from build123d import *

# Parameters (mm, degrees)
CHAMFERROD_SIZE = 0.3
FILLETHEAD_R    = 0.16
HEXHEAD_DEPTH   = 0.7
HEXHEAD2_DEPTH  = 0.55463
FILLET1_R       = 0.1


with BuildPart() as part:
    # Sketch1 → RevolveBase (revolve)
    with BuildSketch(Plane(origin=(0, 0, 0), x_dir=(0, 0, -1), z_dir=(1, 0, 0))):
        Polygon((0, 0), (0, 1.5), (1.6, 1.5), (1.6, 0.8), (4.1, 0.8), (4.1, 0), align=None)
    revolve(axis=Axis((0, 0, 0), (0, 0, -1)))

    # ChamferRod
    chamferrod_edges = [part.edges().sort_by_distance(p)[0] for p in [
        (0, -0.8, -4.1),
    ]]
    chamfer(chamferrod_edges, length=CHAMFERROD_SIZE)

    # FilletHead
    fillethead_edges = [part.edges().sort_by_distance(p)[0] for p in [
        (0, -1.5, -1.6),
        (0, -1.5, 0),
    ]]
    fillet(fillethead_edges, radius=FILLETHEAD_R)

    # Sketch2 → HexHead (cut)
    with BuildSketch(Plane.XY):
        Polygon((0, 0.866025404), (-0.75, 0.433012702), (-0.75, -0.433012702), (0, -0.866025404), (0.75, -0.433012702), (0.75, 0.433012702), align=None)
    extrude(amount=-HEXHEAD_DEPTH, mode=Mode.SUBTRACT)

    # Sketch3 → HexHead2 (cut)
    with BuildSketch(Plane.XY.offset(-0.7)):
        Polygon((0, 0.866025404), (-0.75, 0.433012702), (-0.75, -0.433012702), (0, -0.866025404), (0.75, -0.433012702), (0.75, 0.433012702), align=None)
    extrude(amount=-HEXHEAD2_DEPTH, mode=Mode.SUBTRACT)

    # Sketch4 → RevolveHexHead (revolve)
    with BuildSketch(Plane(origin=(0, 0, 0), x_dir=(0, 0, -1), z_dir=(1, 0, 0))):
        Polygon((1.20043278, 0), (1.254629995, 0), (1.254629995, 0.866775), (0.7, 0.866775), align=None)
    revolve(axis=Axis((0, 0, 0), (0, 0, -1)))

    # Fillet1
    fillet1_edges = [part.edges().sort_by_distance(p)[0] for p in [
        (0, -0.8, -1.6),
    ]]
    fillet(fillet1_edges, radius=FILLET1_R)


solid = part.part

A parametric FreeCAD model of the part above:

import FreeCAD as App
import Part
import Sketcher
from FreeCAD import Vector
Q = App.Units.Quantity


def edges_at(feature, points):
    """Names of the edges that pass closest to the given points."""
    edges = feature.Shape.Edges
    near = lambda p: min(range(len(edges)), key=lambda i: edges[i].distToShape(Part.Vertex(*p))[0])
    return sorted({f"Edge{near(p) + 1}" for p in points})

doc = App.newDocument("Part")
params = doc.addObject("Spreadsheet::Sheet", "Params")
for row, (alias, value) in enumerate([
    ("sketch1_width", "1.5 mm"),
    ("sketch1_width2", "0.8 mm"),
    ("sketch1_height", "4.1 mm"),
    ("sketch1_height2", "2.5 mm"),
    ("revolution_angle", "360 deg"),
    ("chamfer_size", "0.3 mm"),
    ("fillet_radius", "0.16 mm"),
    ("pocket1_length", "0.7 mm"),
    ("pocket2_length", "0.55463 mm"),
    ("revolution2_angle", "360 deg"),
    ("fillet2_radius", "0.1 mm"),
], start=1):
    params.set(f"A{row}", alias)
    params.set(f"B{row}", "=" + value)
    params.setAlias(f"B{row}", alias)

body = doc.addObject("PartDesign::Body", "Body")

# Sketch on YZ plane
sketch1 = body.newObject("Sketcher::SketchObject", "Sketch")
sketch1.AttachmentSupport = (doc.getObject("YZ_Plane"), [""])
sketch1.MapMode = "FlatFace"
sketch1.addGeometry([
    Part.LineSegment(Vector(1.5, 0, 0), Vector(0, 0, 0)),  # 0
    Part.LineSegment(Vector(0, 0, 0), Vector(0, -4.1, 0)),  # 1
    Part.LineSegment(Vector(0, -4.1, 0), Vector(0.8, -4.1, 0)),  # 2
    Part.LineSegment(Vector(0.8, -4.1, 0), Vector(0.8, -1.6, 0)),  # 3
    Part.LineSegment(Vector(0.8, -1.6, 0), Vector(1.5, -1.6, 0)),  # 4
    Part.LineSegment(Vector(1.5, -1.6, 0), Vector(1.5, 0, 0)),  # 5
], False)
sketch1.addConstraint([
    Sketcher.Constraint("Coincident", 0, 2, 1, 1),
    Sketcher.Constraint("Coincident", 1, 2, 2, 1),
    Sketcher.Constraint("Coincident", 2, 2, 3, 1),
    Sketcher.Constraint("Coincident", 3, 2, 4, 1),
    Sketcher.Constraint("Coincident", 4, 2, 5, 1),
    Sketcher.Constraint("Coincident", 5, 2, 0, 1),
    Sketcher.Constraint("Horizontal", 0),
    Sketcher.Constraint("Vertical", 1),
    Sketcher.Constraint("Horizontal", 2),
    Sketcher.Constraint("Vertical", 3),
    Sketcher.Constraint("Horizontal", 4),
    Sketcher.Constraint("Vertical", 5),
    Sketcher.Constraint("Coincident", 0, 2, -1, 1),
    Sketcher.Constraint("DistanceX", 0, 2, 0, 1, Q("1.5 mm")),
    Sketcher.Constraint("DistanceX", 2, 1, 2, 2, Q("0.8 mm")),
    Sketcher.Constraint("DistanceY", 1, 2, 1, 1, Q("4.1 mm")),
    Sketcher.Constraint("DistanceY", 3, 1, 3, 2, Q("2.5 mm")),
])
sketch1.setExpression("Constraints[13]", "Params.sketch1_width")
sketch1.setExpression("Constraints[14]", "Params.sketch1_width2")
sketch1.setExpression("Constraints[15]", "Params.sketch1_height")
sketch1.setExpression("Constraints[16]", "Params.sketch1_height2")
revolution = body.newObject("PartDesign::Revolution", "Revolution")
revolution.Profile = sketch1
revolution.ReferenceAxis = (sketch1, ["V_Axis"])
revolution.setExpression("Angle", "Params.revolution_angle")
doc.recompute()

chamfer = body.newObject("PartDesign::Chamfer", "Chamfer")
chamfer.Base = (revolution, edges_at(revolution, [(0, -0.8, -4.1)]))
chamfer.setExpression("Size", "Params.chamfer_size")
doc.recompute()

fillet = body.newObject("PartDesign::Fillet", "Fillet")
fillet.Base = (chamfer, edges_at(chamfer, [(0, -1.5, -1.6), (0, -1.5, 0)]))
fillet.setExpression("Radius", "Params.fillet_radius")

# Sketch on XY plane
sketch2 = body.newObject("Sketcher::SketchObject", "Sketch001")
sketch2.AttachmentSupport = (doc.getObject("XY_Plane"), [""])
sketch2.MapMode = "FlatFace"
sketch2.addGeometry([
    Part.LineSegment(Vector(0, 0.9, 0), Vector(-0.8, 0.4, 0)),  # 0
    Part.LineSegment(Vector(-0.8, 0.4, 0), Vector(-0.8, -0.4, 0)),  # 1
    Part.LineSegment(Vector(-0.8, -0.4, 0), Vector(0, -0.9, 0)),  # 2
    Part.LineSegment(Vector(0, -0.9, 0), Vector(0.8, -0.4, 0)),  # 3
    Part.LineSegment(Vector(0.8, -0.4, 0), Vector(0.8, 0.4, 0)),  # 4
    Part.LineSegment(Vector(0.8, 0.4, 0), Vector(0, 0.9, 0)),  # 5
], False)
sketch2.addConstraint([
    Sketcher.Constraint("Coincident", 0, 2, 1, 1),
    Sketcher.Constraint("Coincident", 1, 2, 2, 1),
    Sketcher.Constraint("Coincident", 2, 2, 3, 1),
    Sketcher.Constraint("Coincident", 3, 2, 4, 1),
    Sketcher.Constraint("Coincident", 4, 2, 5, 1),
    Sketcher.Constraint("Coincident", 5, 2, 0, 1),
    Sketcher.Constraint("Vertical", 1),
    Sketcher.Constraint("Vertical", 4),
    Sketcher.Constraint("Symmetric", 0, 2, 3, 2, -1, 1),
    Sketcher.Constraint("Symmetric", 2, 2, 5, 2, -1, 1),
    Sketcher.Constraint("PointOnObject", 2, 2, -2),
    Sketcher.Constraint("Parallel", 2, 5),
    Sketcher.Constraint("Horizontal", 1, 2, 3, 2),
    Sketcher.Constraint("Angle", 0, Q("-150 deg")),
    Sketcher.Constraint("DistanceX", 1, 2, 3, 2, Q("1.5 mm")),
    Sketcher.Constraint("DistanceY", 1, 2, 1, 1, Q("0.866025 mm")),
])
pocket1 = body.newObject("PartDesign::Pocket", "Pocket")
pocket1.Profile = sketch2
pocket1.setExpression("Length", "Params.pocket1_length")

# Sketch on XY plane
sketch3 = body.newObject("Sketcher::SketchObject", "Sketch002")
sketch3.AttachmentSupport = (doc.getObject("XY_Plane"), [""])
sketch3.MapMode = "FlatFace"
sketch3.AttachmentOffset = App.Placement(Vector(0, 0, -0.7), App.Rotation())
sketch3.addGeometry([
    Part.LineSegment(Vector(0, 0.9, 0), Vector(-0.8, 0.4, 0)),  # 0
    Part.LineSegment(Vector(-0.8, 0.4, 0), Vector(-0.8, -0.4, 0)),  # 1
    Part.LineSegment(Vector(-0.8, -0.4, 0), Vector(0, -0.9, 0)),  # 2
    Part.LineSegment(Vector(0, -0.9, 0), Vector(0.8, -0.4, 0)),  # 3
    Part.LineSegment(Vector(0.8, -0.4, 0), Vector(0.8, 0.4, 0)),  # 4
    Part.LineSegment(Vector(0.8, 0.4, 0), Vector(0, 0.9, 0)),  # 5
], False)
sketch3.addConstraint([
    Sketcher.Constraint("Coincident", 0, 2, 1, 1),
    Sketcher.Constraint("Coincident", 1, 2, 2, 1),
    Sketcher.Constraint("Coincident", 2, 2, 3, 1),
    Sketcher.Constraint("Coincident", 3, 2, 4, 1),
    Sketcher.Constraint("Coincident", 4, 2, 5, 1),
    Sketcher.Constraint("Coincident", 5, 2, 0, 1),
    Sketcher.Constraint("Vertical", 1),
    Sketcher.Constraint("Vertical", 4),
    Sketcher.Constraint("Symmetric", 0, 2, 3, 2, -1, 1),
    Sketcher.Constraint("Symmetric", 2, 2, 5, 2, -1, 1),
    Sketcher.Constraint("PointOnObject", 2, 2, -2),
    Sketcher.Constraint("Parallel", 2, 5),
    Sketcher.Constraint("Horizontal", 1, 2, 3, 2),
    Sketcher.Constraint("Angle", 0, Q("-150 deg")),
    Sketcher.Constraint("DistanceX", 1, 2, 3, 2, Q("1.5 mm")),
    Sketcher.Constraint("DistanceY", 1, 2, 1, 1, Q("0.866025 mm")),
])
pocket2 = body.newObject("PartDesign::Pocket", "Pocket001")
pocket2.Profile = sketch3
pocket2.setExpression("Length", "Params.pocket2_length")

# Sketch on YZ plane
sketch4 = body.newObject("Sketcher::SketchObject", "Sketch003")
sketch4.AttachmentSupport = (doc.getObject("YZ_Plane"), [""])
sketch4.MapMode = "FlatFace"
sketch4.addGeometry([
    Part.LineSegment(Vector(0, -1.2, 0), Vector(0, -1.25, 0)),
    Part.LineSegment(Vector(0, -1.25, 0), Vector(0.87, -1.25, 0)),
    Part.LineSegment(Vector(0.87, -1.25, 0), Vector(0.87, -0.7, 0)),
    Part.LineSegment(Vector(0.87, -0.7, 0), Vector(0, -1.2, 0)),
], False)
sketch4.addConstraint([
    Sketcher.Constraint("Coincident", 0, 2, 1, 1),
    Sketcher.Constraint("Coincident", 1, 2, 2, 1),
    Sketcher.Constraint("Coincident", 2, 2, 3, 1),
    Sketcher.Constraint("Coincident", 3, 2, 0, 1),
    Sketcher.Constraint("Vertical", 0),
    Sketcher.Constraint("Horizontal", 1),
    Sketcher.Constraint("Vertical", 2),
    Sketcher.Constraint("PointOnObject", 0, 2, -2),
    Sketcher.Constraint("Angle", 3, Q("-150 deg")),
    Sketcher.Constraint("DistanceY", 2, 2, -1, 1, Q("0.7 mm")),
    Sketcher.Constraint("DistanceY", 2, 1, 2, 2, Q("0.55463 mm")),
    Sketcher.Constraint("DistanceX", 1, 1, 1, 2, Q("0.866775 mm")),
])
revolution2 = body.newObject("PartDesign::Revolution", "Revolution001")
revolution2.Profile = sketch4
revolution2.ReferenceAxis = (sketch4, ["V_Axis"])
revolution2.setExpression("Angle", "Params.revolution2_angle")
doc.recompute()

fillet2 = body.newObject("PartDesign::Fillet", "Fillet001")
fillet2.Base = (revolution2, edges_at(revolution2, [(0, -0.8, -1.6)]))
fillet2.setExpression("Radius", "Params.fillet2_radius")

doc.recompute()
